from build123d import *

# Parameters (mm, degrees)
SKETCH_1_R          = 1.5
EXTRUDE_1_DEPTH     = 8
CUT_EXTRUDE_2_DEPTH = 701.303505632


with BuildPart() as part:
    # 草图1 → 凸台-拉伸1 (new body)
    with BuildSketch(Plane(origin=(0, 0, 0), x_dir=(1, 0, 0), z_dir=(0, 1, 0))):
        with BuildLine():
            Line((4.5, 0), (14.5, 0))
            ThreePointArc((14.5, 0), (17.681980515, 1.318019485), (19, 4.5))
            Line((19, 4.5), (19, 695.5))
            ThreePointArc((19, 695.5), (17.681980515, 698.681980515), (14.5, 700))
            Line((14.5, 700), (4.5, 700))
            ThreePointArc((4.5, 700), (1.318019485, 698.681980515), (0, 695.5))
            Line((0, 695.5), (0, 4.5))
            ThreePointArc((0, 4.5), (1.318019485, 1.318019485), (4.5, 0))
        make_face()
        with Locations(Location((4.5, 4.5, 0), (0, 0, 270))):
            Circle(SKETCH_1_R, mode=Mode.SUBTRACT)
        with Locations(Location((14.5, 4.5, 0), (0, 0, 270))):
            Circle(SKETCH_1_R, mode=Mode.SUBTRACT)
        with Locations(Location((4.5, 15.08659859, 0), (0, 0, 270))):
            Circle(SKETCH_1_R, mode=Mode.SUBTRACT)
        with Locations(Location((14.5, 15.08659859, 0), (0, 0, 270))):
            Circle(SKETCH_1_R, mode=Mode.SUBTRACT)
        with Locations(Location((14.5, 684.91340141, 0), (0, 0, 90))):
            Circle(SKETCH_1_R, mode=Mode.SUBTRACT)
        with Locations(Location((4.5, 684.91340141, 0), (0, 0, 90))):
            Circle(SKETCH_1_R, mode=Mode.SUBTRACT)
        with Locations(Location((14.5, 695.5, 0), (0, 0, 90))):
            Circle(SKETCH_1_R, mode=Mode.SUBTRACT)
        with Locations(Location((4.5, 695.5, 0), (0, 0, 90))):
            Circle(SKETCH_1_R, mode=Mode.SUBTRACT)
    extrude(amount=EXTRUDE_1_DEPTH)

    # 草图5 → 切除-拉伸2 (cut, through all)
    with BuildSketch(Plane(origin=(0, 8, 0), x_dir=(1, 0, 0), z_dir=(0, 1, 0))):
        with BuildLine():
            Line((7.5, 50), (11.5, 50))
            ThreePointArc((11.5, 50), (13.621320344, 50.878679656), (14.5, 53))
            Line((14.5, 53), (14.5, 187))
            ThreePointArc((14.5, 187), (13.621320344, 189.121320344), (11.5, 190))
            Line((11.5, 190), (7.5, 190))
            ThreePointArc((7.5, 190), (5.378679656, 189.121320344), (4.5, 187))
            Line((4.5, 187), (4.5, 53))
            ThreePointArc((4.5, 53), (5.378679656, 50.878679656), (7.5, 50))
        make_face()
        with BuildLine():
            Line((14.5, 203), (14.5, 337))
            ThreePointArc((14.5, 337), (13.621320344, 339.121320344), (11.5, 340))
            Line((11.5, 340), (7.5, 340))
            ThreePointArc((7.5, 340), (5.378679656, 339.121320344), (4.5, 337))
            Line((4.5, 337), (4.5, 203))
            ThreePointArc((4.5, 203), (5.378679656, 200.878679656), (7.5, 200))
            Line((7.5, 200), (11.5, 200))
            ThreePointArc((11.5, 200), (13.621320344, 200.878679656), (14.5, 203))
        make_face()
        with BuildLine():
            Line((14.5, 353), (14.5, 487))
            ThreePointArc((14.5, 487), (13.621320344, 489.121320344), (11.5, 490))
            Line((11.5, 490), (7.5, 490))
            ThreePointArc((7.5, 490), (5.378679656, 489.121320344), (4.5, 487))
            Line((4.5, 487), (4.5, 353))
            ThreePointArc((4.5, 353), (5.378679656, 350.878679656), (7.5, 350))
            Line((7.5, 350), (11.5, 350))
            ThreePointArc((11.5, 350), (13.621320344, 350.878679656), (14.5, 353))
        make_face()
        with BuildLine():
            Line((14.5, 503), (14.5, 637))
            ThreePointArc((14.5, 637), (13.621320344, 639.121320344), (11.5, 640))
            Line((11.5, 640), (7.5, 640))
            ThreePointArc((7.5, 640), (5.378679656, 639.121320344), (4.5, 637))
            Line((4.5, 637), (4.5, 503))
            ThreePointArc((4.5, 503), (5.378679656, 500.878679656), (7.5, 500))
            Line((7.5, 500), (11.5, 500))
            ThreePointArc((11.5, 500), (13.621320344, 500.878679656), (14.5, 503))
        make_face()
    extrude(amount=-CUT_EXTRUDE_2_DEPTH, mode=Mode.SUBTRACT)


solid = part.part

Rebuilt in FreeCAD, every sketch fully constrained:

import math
import FreeCAD as App
import Part
import Sketcher

V = App.Vector

doc = App.newDocument("Part")
params = doc.addObject("Spreadsheet::Sheet", "Params")
for row, (alias, value) in enumerate([
    ("sketch1_diameter", "3 mm"),
    ("sketch1_radius", "4.5 mm"),
    ("sketch1_width", "10 mm"),
    ("sketch1_height", "691 mm"),
    ("pad1_length", "8 mm"),
    ("sketch2_radius", "3 mm"),
    ("sketch2_width", "4 mm"),
    ("sketch2_height", "134 mm"),
], start=1):
    params.set(f"A{row}", alias)
    params.set(f"B{row}", "=" + value)
    params.setAlias(f"B{row}", alias)

body = doc.addObject("PartDesign::Body", "Body")

sketch1 = body.newObject("Sketcher::SketchObject", "Sketch")
sketch1.AttachmentSupport = (doc.getObject("XZ_Plane"), [""])
sketch1.MapMode = "FlatFace"
sketch1.addGeometry([
    Part.LineSegment(V(4.5, 0, 0), V(14.5, 0, 0)),
    Part.ArcOfCircle(Part.Circle(V(14.5, -4.5, 0), V(0, 0, 1), 4.5), math.radians(0), math.radians(90)),
    Part.LineSegment(V(19, -4.5, 0), V(19, -695.5, 0)),
    Part.ArcOfCircle(Part.Circle(V(14.5, -695.5, 0), V(0, 0, 1), 4.5), math.radians(-90), math.radians(0)),
    Part.LineSegment(V(14.5, -700, 0), V(4.5, -700, 0)),
    Part.ArcOfCircle(Part.Circle(V(4.5, -695.5, 0), V(0, 0, 1), 4.5), math.radians(-180), math.radians(-90)),
    Part.LineSegment(V(0, -695.5, 0), V(0, -4.5, 0)),
    Part.ArcOfCircle(Part.Circle(V(4.5, -4.5, 0), V(0, 0, 1), 4.5), math.radians(90), math.radians(180)),
    Part.Circle(V(4.5, -4.5, 0), V(0, 0, 1), 1.5),
    Part.Circle(V(4.5, -15.1, 0), V(0, 0, 1), 1.5),
    Part.Circle(V(14.5, -4.5, 0), V(0, 0, 1), 1.5),
    Part.Circle(V(14.5, -15.1, 0), V(0, 0, 1), 1.5),
    Part.Circle(V(4.5, -684.9, 0), V(0, 0, 1), 1.5),
    Part.Circle(V(4.5, -695.5, 0), V(0, 0, 1), 1.5),
    Part.Circle(V(14.5, -684.9, 0), V(0, 0, 1), 1.5),
    Part.Circle(V(14.5, -695.5, 0), V(0, 0, 1), 1.5),
], False)
sketch1.addConstraint([
    Sketcher.Constraint("Tangent", 0, 2, 1, 2),
    Sketcher.Constraint("Tangent", 1, 1, 2, 1),
    Sketcher.Constraint("Tangent", 2, 2, 3, 2),
    Sketcher.Constraint("Tangent", 3, 1, 4, 1),
    Sketcher.Constraint("Tangent", 4, 2, 5, 2),
    Sketcher.Constraint("Tangent", 5, 1, 6, 1),
    Sketcher.Constraint("Tangent", 6, 2, 7, 2),
    Sketcher.Constraint("Tangent", 7, 1, 0, 1),
    Sketcher.Constraint("Horizontal", 0),
    Sketcher.Constraint("Vertical", 2),
    Sketcher.Constraint("Horizontal", 4),
    Sketcher.Constraint("Vertical", 6),
    Sketcher.Constraint("Coincident", 8, 3, 7, 3),
    Sketcher.Constraint("Coincident", 10, 3, 1, 3),
    Sketcher.Constraint("Coincident", 13, 3, 5, 3),
    Sketcher.Constraint("Coincident", 15, 3, 3, 3),
    Sketcher.Constraint("Equal", 1, 3),
    Sketcher.Constraint("Equal", 3, 5),
    Sketcher.Constraint("Equal", 5, 7),
    Sketcher.Constraint("Equal", 8, 9),
    Sketcher.Constraint("Equal", 9, 10),
    Sketcher.Constraint("Equal", 10, 11),
    Sketcher.Constraint("Equal", 11, 12),
    Sketcher.Constraint("Equal", 12, 13),
    Sketcher.Constraint("Equal", 13, 14),
    Sketcher.Constraint("Equal", 14, 15),
    Sketcher.Constraint("PointOnObject", 0, 2, -1),
    Sketcher.Constraint("PointOnObject", 5, 1, -2),
    Sketcher.Constraint("Horizontal", 9, 3, 11, 3),
    Sketcher.Constraint("Horizontal", 12, 3, 14, 3),
    Sketcher.Constraint("Vertical", 8, 3, 9, 3),
    Sketcher.Constraint("Vertical", 10, 3, 11, 3),
    Sketcher.Constraint("Vertical", 9, 3, 12, 3),
    Sketcher.Constraint("Vertical", 11, 3, 14, 3),
    Sketcher.Constraint("Diameter", 8, 3.0),
    Sketcher.Constraint("Radius", 1, 4.5),
    Sketcher.Constraint("DistanceX", 0, 1, 0, 2, 10.0),
    Sketcher.Constraint("DistanceY", 2, 2, 2, 1, 691.0),
    Sketcher.Constraint("DistanceY", 9, 3, -1, 1, 15.086599),
    Sketcher.Constraint("DistanceY", 12, 3, -1, 1, 684.913401),
])
sketch1.setExpression("Constraints[34]", "Params.sketch1_diameter")
sketch1.setExpression("Constraints[35]", "Params.sketch1_radius")
sketch1.setExpression("Constraints[36]", "Params.sketch1_width")
sketch1.setExpression("Constraints[37]", "Params.sketch1_height")
pad1 = body.newObject("PartDesign::Pad", "Pad")
pad1.Profile = sketch1
pad1.setExpression("Length", "Params.pad1_length")
pad1.Reversed = True

sketch2 = body.newObject("Sketcher::SketchObject", "Sketch001")
sketch2.AttachmentSupport = (doc.getObject("XZ_Plane"), [""])
sketch2.MapMode = "FlatFace"
sketch2.AttachmentOffset = App.Placement(V(0, 0, -8), App.Rotation())
sketch2.addGeometry([
    Part.LineSegment(V(7.5, -50, 0), V(11.5, -50, 0)),
    Part.ArcOfCircle(Part.Circle(V(11.5, -53, 0), V(0, 0, 1), 3), math.radians(0), math.radians(90)),
    Part.LineSegment(V(14.5, -53, 0), V(14.5, -187, 0)),
    Part.ArcOfCircle(Part.Circle(V(11.5, -187, 0), V(0, 0, 1), 3), math.radians(-90), math.radians(0)),
    Part.LineSegment(V(11.5, -190, 0), V(7.5, -190, 0)),
    Part.ArcOfCircle(Part.Circle(V(7.5, -187, 0), V(0, 0, 1), 3), math.radians(180), math.radians(270)),
    Part.LineSegment(V(4.5, -187, 0), V(4.5, -53, 0)),
    Part.ArcOfCircle(Part.Circle(V(7.5, -53, 0), V(0, 0, 1), 3), math.radians(90), math.radians(180)),
    Part.LineSegment(V(14.5, -203, 0), V(14.5, -337, 0)),
    Part.ArcOfCircle(Part.Circle(V(11.5, -337, 0), V(0, 0, 1), 3), math.radians(-90), math.radians(0)),
    Part.LineSegment(V(11.5, -340, 0), V(7.5, -340, 0)),
    Part.ArcOfCircle(Part.Circle(V(7.5, -337, 0), V(0, 0, 1), 3), math.radians(180), math.radians(270)),
    Part.LineSegment(V(4.5, -337, 0), V(4.5, -203, 0)),
    Part.ArcOfCircle(Part.Circle(V(7.5, -203, 0), V(0, 0, 1), 3), math.radians(90), math.radians(180)),
    Part.LineSegment(V(7.5, -200, 0), V(11.5, -200, 0)),
    Part.ArcOfCircle(Part.Circle(V(11.5, -203, 0), V(0, 0, 1), 3), math.radians(0), math.radians(90)),
    Part.LineSegment(V(14.5, -353, 0), V(14.5, -487, 0)),
    Part.ArcOfCircle(Part.Circle(V(11.5, -487, 0), V(0, 0, 1), 3), math.radians(-90), math.radians(0)),
    Part.LineSegment(V(11.5, -490, 0), V(7.5, -490, 0)),
    Part.ArcOfCircle(Part.Circle(V(7.5, -487, 0), V(0, 0, 1), 3), math.radians(180), math.radians(270)),
    Part.LineSegment(V(4.5, -487, 0), V(4.5, -353, 0)),
    Part.ArcOfCircle(Part.Circle(V(7.5, -353, 0), V(0, 0, 1), 3), math.radians(90), math.radians(180)),
    Part.LineSegment(V(7.5, -350, 0), V(11.5, -350, 0)),
    Part.ArcOfCircle(Part.Circle(V(11.5, -353, 0), V(0, 0, 1), 3), math.radians(0), math.radians(90)),
    Part.LineSegment(V(14.5, -503, 0), V(14.5, -637, 0)),
    Part.ArcOfCircle(Part.Circle(V(11.5, -637, 0), V(0, 0, 1), 3), math.radians(-90), math.radians(0)),
    Part.LineSegment(V(11.5, -640, 0), V(7.5, -640, 0)),
    Part.ArcOfCircle(Part.Circle(V(7.5, -637, 0), V(0, 0, 1), 3), math.radians(180), math.radians(270)),
    Part.LineSegment(V(4.5, -637, 0), V(4.5, -503, 0)),
    Part.ArcOfCircle(Part.Circle(V(7.5, -503, 0), V(0, 0, 1), 3), math.radians(90), math.radians(180)),
    Part.LineSegment(V(7.5, -500, 0), V(11.5, -500, 0)),
    Part.ArcOfCircle(Part.Circle(V(11.5, -503, 0), V(0, 0, 1), 3), math.radians(0), math.radians(90)),
], False)
sketch2.addConstraint([
    Sketcher.Constraint("Tangent", 0, 2, 1, 2),
    Sketcher.Constraint("Tangent", 1, 1, 2, 1),
    Sketcher.Constraint("Tangent", 2, 2, 3, 2),
    Sketcher.Constraint("Tangent", 3, 1, 4, 1),
    Sketcher.Constraint("Tangent", 4, 2, 5, 2),
    Sketcher.Constraint("Tangent", 5, 1, 6, 1),
    Sketcher.Constraint("Tangent", 6, 2, 7, 2),
    Sketcher.Constraint("Tangent", 7, 1, 0, 1),
    Sketcher.Constraint("Tangent", 8, 2, 9, 2),
    Sketcher.Constraint("Tangent", 9, 1, 10, 1),
    Sketcher.Constraint("Tangent", 10, 2, 11, 2),
    Sketcher.Constraint("Tangent", 11, 1, 12, 1),
    Sketcher.Constraint("Tangent", 12, 2, 13, 2),
    Sketcher.Constraint("Tangent", 13, 1, 14, 1),
    Sketcher.Constraint("Tangent", 14, 2, 15, 2),
    Sketcher.Constraint("Tangent", 15, 1, 8, 1),
    Sketcher.Constraint("Tangent", 16, 2, 17, 2),
    Sketcher.Constraint("Tangent", 17, 1, 18, 1),
    Sketcher.Constraint("Tangent", 18, 2, 19, 2),
    Sketcher.Constraint("Tangent", 19, 1, 20, 1),
    Sketcher.Constraint("Tangent", 20, 2, 21, 2),
    Sketcher.Constraint("Tangent", 21, 1, 22, 1),
    Sketcher.Constraint("Tangent", 22, 2, 23, 2),
    Sketcher.Constraint("Tangent", 23, 1, 16, 1),
    Sketcher.Constraint("Tangent", 24, 2, 25, 2),
    Sketcher.Constraint("Tangent", 25, 1, 26, 1),
    Sketcher.Constraint("Tangent", 26, 2, 27, 2),
    Sketcher.Constraint("Tangent", 27, 1, 28, 1),
    Sketcher.Constraint("Tangent", 28, 2, 29, 2),
    Sketcher.Constraint("Tangent", 29, 1, 30, 1),
    Sketcher.Constraint("Tangent", 30, 2, 31, 2),
    Sketcher.Constraint("Tangent", 31, 1, 24, 1),
    Sketcher.Constraint("Horizontal", 0),
    Sketcher.Constraint("Vertical", 2),
    Sketcher.Constraint("Horizontal", 4),
    Sketcher.Constraint("Vertical", 6),
    Sketcher.Constraint("Vertical", 8),
    Sketcher.Constraint("Horizontal", 10),
    Sketcher.Constraint("Vertical", 12),
    Sketcher.Constraint("Horizontal", 14),
    Sketcher.Constraint("Vertical", 16),
    Sketcher.Constraint("Horizontal", 18),
    Sketcher.Constraint("Vertical", 20),
    Sketcher.Constraint("Horizontal", 22),
    Sketcher.Constraint("Vertical", 24),
    Sketcher.Constraint("Horizontal", 26),
    Sketcher.Constraint("Vertical", 28),
    Sketcher.Constraint("Horizontal", 30),
    Sketcher.Constraint("Equal", 1, 3),
    Sketcher.Constraint("Equal", 3, 5),
    Sketcher.Constraint("Equal", 5, 7),
    Sketcher.Constraint("Equal", 7, 9),
    Sketcher.Constraint("Equal", 9, 11),
    Sketcher.Constraint("Equal", 11, 13),
    Sketcher.Constraint("Equal", 13, 15),
    Sketcher.Constraint("Equal", 15, 17),
    Sketcher.Constraint("Equal", 17, 19),
    Sketcher.Constraint("Equal", 19, 21),
    Sketcher.Constraint("Equal", 21, 23),
    Sketcher.Constraint("Equal", 23, 25),
    Sketcher.Constraint("Equal", 25, 27),
    Sketcher.Constraint("Equal", 27, 29),
    Sketcher.Constraint("Equal", 29, 31),
    Sketcher.Constraint("Vertical", 3, 3, 9, 3),
    Sketcher.Constraint("Vertical", 7, 3, 11, 3),
    Sketcher.Constraint("Vertical", 15, 3, 17, 3),
    Sketcher.Constraint("Vertical", 13, 3, 19, 3),
    Sketcher.Constraint("Vertical", 23, 3, 25, 3),
    Sketcher.Constraint("Vertical", 21, 3, 27, 3),
    Sketcher.Constraint("Equal", 6, 8),
    Sketcher.Constraint("Equal", 12, 16),
    Sketcher.Constraint("Equal", 20, 24),
    Sketcher.Constraint("Radius", 1, 3.0),
    Sketcher.Constraint("DistanceX", 0, 1, 0, 2, 4.0),
    Sketcher.Constraint("DistanceY", 2, 2, 2, 1, 134.0),
    Sketcher.Constraint("DistanceY", 1, 3, -1, 1, 53.0),
    Sketcher.Constraint("DistanceY", 9, 3, -1, 1, 337.0),
    Sketcher.Constraint("DistanceY", 17, 3, -1, 1, 487.0),
    Sketcher.Constraint("DistanceY", 25, 3, -1, 1, 637.0),
    Sketcher.Constraint("DistanceX", -1, 1, 1, 3, 11.5),
])
sketch2.setExpression("Constraints[72]", "Params.sketch2_radius")
sketch2.setExpression("Constraints[73]", "Params.sketch2_width")
sketch2.setExpression("Constraints[74]", "Params.sketch2_height")
pocket1 = body.newObject("PartDesign::Pocket", "Pocket")
pocket1.Profile = sketch2
pocket1.Type = "ThroughAll"
pocket1.Reversed = True

doc.recompute()
